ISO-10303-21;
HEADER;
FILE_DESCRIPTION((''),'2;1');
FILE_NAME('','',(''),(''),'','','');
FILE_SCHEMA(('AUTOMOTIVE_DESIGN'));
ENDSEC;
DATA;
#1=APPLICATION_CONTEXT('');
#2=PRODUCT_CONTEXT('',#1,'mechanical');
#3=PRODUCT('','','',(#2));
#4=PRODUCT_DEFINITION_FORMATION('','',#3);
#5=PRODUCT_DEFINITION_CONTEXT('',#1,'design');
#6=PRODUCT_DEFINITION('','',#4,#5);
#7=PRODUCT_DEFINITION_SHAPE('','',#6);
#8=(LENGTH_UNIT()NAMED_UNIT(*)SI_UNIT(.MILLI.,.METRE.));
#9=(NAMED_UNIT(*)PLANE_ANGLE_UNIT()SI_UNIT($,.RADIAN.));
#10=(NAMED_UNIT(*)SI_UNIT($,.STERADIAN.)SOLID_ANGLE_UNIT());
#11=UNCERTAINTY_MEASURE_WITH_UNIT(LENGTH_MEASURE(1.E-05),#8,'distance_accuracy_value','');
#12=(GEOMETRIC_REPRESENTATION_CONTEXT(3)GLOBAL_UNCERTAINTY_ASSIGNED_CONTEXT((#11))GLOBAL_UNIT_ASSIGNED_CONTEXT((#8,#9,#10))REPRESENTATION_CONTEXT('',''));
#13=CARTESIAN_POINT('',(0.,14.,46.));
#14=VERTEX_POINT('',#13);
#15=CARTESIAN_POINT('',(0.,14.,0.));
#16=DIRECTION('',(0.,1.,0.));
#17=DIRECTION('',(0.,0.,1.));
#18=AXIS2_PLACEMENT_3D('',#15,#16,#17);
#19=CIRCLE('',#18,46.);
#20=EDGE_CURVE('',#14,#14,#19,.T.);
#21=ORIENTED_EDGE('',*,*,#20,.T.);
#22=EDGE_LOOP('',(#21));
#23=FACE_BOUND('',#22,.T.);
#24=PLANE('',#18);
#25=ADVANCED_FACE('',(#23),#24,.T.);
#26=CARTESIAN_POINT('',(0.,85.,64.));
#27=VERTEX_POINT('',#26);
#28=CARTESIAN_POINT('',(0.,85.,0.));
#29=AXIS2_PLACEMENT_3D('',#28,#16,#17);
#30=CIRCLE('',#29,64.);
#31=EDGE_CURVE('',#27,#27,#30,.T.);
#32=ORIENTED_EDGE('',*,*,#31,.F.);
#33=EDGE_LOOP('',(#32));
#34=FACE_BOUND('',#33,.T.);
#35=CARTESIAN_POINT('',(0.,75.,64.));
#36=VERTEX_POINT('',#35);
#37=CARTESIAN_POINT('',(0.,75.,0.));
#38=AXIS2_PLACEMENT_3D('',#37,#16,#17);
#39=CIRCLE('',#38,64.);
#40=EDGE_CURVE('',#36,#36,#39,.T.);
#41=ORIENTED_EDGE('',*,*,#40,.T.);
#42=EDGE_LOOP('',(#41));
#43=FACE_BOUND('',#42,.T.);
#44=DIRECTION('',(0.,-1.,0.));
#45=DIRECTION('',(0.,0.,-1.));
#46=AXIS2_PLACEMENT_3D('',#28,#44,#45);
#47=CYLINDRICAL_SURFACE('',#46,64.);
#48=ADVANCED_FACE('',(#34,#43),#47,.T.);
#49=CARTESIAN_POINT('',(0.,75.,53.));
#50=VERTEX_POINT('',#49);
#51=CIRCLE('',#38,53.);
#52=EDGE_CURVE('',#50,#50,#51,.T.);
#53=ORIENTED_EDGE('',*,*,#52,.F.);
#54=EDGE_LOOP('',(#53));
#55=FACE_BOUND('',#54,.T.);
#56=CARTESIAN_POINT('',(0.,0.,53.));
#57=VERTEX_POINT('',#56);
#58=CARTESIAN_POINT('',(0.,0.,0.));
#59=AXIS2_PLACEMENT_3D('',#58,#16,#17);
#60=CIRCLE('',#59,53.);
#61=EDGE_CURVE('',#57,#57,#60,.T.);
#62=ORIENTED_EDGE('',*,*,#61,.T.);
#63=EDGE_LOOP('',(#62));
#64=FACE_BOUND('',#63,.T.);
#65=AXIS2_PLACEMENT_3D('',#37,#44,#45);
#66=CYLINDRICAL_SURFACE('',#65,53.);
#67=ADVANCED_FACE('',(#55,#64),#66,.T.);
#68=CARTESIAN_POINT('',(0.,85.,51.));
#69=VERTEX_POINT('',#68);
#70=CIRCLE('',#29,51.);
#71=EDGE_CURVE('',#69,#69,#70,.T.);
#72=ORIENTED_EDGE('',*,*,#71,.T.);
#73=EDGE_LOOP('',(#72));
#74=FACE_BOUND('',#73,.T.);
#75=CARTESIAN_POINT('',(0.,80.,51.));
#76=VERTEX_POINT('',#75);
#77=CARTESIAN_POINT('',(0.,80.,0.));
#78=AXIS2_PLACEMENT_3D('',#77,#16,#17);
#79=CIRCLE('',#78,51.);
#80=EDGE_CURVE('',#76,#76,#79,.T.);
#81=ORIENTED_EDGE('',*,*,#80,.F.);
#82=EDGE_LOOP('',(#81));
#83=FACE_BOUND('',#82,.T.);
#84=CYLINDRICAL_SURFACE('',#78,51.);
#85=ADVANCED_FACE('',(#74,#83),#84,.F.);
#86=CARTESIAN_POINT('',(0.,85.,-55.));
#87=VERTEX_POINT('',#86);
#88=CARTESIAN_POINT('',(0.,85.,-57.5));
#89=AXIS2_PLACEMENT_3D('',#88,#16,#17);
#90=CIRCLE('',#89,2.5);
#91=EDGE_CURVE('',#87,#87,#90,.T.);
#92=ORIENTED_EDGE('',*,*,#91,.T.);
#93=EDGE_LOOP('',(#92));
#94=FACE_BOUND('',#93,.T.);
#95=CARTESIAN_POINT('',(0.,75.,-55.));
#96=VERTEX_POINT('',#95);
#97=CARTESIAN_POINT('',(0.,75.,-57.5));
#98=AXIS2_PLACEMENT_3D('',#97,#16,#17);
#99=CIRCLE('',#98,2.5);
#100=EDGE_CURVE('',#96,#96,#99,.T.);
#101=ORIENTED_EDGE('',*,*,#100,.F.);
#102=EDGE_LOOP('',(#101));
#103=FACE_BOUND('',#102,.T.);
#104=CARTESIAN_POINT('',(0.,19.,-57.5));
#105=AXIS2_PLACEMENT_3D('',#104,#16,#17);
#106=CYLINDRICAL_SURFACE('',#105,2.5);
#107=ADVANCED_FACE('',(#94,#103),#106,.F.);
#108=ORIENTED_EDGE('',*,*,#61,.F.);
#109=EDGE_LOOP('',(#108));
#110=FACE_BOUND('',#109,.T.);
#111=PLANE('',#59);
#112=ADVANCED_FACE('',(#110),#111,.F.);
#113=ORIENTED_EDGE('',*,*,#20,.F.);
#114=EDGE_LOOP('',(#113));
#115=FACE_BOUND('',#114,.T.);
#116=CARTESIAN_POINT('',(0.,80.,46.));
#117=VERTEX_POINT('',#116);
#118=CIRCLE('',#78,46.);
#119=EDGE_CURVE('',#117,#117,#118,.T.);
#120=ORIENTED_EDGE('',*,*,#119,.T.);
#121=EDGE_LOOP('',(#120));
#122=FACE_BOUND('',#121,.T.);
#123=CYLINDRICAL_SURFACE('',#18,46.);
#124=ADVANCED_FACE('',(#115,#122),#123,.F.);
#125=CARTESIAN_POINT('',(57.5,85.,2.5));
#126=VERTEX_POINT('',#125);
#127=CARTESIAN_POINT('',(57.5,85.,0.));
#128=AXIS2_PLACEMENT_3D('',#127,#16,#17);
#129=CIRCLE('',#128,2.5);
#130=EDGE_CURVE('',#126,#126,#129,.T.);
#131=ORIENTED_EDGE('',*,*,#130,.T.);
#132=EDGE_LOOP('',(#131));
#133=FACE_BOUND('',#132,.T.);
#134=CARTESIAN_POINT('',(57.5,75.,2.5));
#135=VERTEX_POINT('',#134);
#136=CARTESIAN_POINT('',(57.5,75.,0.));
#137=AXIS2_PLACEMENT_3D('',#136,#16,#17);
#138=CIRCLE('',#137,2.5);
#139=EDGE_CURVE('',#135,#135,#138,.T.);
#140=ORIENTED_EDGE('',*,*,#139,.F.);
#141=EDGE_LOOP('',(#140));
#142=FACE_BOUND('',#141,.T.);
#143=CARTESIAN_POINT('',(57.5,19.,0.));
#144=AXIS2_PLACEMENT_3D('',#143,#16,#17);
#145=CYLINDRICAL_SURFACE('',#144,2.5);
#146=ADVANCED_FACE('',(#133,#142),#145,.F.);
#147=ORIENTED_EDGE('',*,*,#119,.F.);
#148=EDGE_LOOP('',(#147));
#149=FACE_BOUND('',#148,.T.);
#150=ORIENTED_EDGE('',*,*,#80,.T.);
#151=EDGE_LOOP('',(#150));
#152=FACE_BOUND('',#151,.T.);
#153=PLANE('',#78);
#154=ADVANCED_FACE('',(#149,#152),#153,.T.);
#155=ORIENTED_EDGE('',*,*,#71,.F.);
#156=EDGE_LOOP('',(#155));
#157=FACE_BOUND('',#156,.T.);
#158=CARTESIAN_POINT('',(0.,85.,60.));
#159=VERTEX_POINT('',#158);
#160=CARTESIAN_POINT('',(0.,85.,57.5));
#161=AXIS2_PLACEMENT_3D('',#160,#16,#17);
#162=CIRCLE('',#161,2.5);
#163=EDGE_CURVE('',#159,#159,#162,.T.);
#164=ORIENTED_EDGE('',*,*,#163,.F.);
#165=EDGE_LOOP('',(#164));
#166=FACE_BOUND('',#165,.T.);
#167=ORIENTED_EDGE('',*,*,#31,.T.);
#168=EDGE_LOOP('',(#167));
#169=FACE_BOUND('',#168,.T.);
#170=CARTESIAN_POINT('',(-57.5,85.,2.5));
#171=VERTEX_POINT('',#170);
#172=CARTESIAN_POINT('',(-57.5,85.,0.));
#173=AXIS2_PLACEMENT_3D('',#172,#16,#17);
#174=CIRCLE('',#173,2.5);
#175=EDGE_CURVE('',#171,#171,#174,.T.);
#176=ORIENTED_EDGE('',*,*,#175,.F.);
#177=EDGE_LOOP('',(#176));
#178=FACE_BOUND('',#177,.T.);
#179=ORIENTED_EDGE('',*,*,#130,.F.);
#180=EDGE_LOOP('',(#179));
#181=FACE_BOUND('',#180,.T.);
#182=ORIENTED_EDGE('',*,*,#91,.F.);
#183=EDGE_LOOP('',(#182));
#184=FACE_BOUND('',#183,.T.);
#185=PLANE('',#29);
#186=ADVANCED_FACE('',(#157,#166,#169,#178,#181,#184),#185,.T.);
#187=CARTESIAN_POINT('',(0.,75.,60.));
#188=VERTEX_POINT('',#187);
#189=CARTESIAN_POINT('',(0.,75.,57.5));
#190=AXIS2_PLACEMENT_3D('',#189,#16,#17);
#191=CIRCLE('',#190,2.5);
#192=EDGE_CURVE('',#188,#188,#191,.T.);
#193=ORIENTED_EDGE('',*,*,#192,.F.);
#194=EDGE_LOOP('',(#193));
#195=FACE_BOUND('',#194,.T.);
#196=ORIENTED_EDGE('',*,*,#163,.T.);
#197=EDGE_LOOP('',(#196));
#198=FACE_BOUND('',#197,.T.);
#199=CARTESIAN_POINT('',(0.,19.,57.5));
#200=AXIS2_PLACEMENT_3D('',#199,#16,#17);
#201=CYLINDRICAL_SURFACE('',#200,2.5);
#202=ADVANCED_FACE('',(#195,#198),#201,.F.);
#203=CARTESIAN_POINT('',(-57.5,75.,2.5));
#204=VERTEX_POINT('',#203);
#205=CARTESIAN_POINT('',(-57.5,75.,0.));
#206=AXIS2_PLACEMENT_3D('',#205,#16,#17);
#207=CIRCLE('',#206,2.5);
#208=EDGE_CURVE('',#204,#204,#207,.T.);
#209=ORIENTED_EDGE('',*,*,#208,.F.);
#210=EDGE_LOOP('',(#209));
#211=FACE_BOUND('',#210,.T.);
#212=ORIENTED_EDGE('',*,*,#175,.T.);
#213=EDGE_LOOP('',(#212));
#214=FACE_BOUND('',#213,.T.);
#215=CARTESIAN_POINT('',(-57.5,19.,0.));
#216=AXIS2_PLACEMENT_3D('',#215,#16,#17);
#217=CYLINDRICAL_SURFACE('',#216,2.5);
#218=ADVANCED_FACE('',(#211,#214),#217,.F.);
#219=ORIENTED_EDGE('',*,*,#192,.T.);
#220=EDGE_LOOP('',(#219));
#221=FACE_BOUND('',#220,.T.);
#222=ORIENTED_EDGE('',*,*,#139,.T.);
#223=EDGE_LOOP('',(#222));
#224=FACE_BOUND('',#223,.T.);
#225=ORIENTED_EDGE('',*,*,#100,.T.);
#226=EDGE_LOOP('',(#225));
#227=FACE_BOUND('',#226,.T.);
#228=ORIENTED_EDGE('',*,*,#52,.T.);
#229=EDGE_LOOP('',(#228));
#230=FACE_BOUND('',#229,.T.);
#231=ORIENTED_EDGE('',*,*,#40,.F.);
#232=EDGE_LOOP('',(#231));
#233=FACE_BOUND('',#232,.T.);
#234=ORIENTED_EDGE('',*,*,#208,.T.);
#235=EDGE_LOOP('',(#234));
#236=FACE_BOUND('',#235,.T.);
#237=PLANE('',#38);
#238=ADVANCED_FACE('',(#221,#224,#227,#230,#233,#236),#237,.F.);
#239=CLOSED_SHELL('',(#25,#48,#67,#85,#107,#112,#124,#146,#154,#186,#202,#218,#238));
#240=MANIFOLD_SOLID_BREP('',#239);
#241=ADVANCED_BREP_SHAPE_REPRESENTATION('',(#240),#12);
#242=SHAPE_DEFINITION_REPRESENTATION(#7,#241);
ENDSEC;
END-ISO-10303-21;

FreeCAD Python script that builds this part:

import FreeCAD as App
import Part
import Sketcher
from FreeCAD import Vector
Q = App.Units.Quantity

doc = App.newDocument("Part")
params = doc.addObject("Spreadsheet::Sheet", "Params")
for row, (alias, value) in enumerate([
    ("sketch1_diameter", "106 mm"),
    ("pad1_length", "75 mm"),
    ("sketch2_diameter", "128 mm"),
    ("pad2_length", "10 mm"),
    ("sketch3_diameter", "102 mm"),
    ("pocket1_length", "5 mm"),
    ("sketch4_diameter", "92 mm"),
    ("pocket2_length", "66 mm"),
    ("sketch5_diameter", "5 mm"),
    ("pocket3_length", "66 mm"),
], start=1):
    params.set(f"A{row}", alias)
    params.set(f"B{row}", "=" + value)
    params.setAlias(f"B{row}", alias)

body = doc.addObject("PartDesign::Body", "Body")

# Sketch on XZ plane
sketch1 = body.newObject("Sketcher::SketchObject", "Sketch")
sketch1.AttachmentSupport = (doc.getObject("XZ_Plane"), [""])
sketch1.MapMode = "FlatFace"
sketch1.addGeometry(Part.Circle(Vector(0, 0, 0), Vector(0, 0, 1), 53), False)
sketch1.addConstraint([
    Sketcher.Constraint("Coincident", 0, 3, -1, 1),
    Sketcher.Constraint("Diameter", 0, Q("106 mm")),
])
sketch1.setExpression("Constraints[1]", "Params.sketch1_diameter")
pad1 = body.newObject("PartDesign::Pad", "Pad")
pad1.Profile = sketch1
pad1.setExpression("Length", "Params.pad1_length")
pad1.Reversed = True

# Sketch on XZ plane
sketch2 = body.newObject("Sketcher::SketchObject", "Sketch001")
sketch2.AttachmentSupport = (doc.getObject("XZ_Plane"), [""])
sketch2.MapMode = "FlatFace"
sketch2.AttachmentOffset = App.Placement(Vector(0, 0, -75), App.Rotation())
sketch2.addGeometry(Part.Circle(Vector(0, 0, 0), Vector(0, 0, 1), 64), False)
sketch2.addConstraint([
    Sketcher.Constraint("Coincident", 0, 3, -1, 1),
    Sketcher.Constraint("Diameter", 0, Q("128 mm")),
])
sketch2.setExpression("Constraints[1]", "Params.sketch2_diameter")
pad2 = body.newObject("PartDesign::Pad", "Pad001")
pad2.Profile = sketch2
pad2.setExpression("Length", "Params.pad2_length")
pad2.Reversed = True

# Sketch on XZ plane
sketch3 = body.newObject("Sketcher::SketchObject", "Sketch002")
sketch3.AttachmentSupport = (doc.getObject("XZ_Plane"), [""])
sketch3.MapMode = "FlatFace"
sketch3.AttachmentOffset = App.Placement(Vector(0, 0, -85), App.Rotation())
sketch3.addGeometry(Part.Circle(Vector(0, 0, 0), Vector(0, 0, 1), 51), False)
sketch3.addConstraint([
    Sketcher.Constraint("Coincident", 0, 3, -1, 1),
    Sketcher.Constraint("Diameter", 0, Q("102 mm")),
])
sketch3.setExpression("Constraints[1]", "Params.sketch3_diameter")
pocket1 = body.newObject("PartDesign::Pocket", "Pocket")
pocket1.Profile = sketch3
pocket1.setExpression("Length", "Params.pocket1_length")
pocket1.Reversed = True

# Sketch on XZ plane
sketch4 = body.newObject("Sketcher::SketchObject", "Sketch003")
sketch4.AttachmentSupport = (doc.getObject("XZ_Plane"), [""])
sketch4.MapMode = "FlatFace"
sketch4.AttachmentOffset = App.Placement(Vector(0, 0, -80), App.Rotation())
sketch4.addGeometry(Part.Circle(Vector(0, 0, 0), Vector(0, 0, 1), 46), False)
sketch4.addConstraint([
    Sketcher.Constraint("Coincident", 0, 3, -1, 1),
    Sketcher.Constraint("Diameter", 0, Q("92 mm")),
])
sketch4.setExpression("Constraints[1]", "Params.sketch4_diameter")
pocket2 = body.newObject("PartDesign::Pocket", "Pocket001")
pocket2.Profile = sketch4
pocket2.setExpression("Length", "Params.pocket2_length")
pocket2.Reversed = True

# Sketch on XZ plane
sketch5 = body.newObject("Sketcher::SketchObject", "Sketch004")
sketch5.AttachmentSupport = (doc.getObject("XZ_Plane"), [""])
sketch5.MapMode = "FlatFace"
sketch5.AttachmentOffset = App.Placement(Vector(0, 0, -85), App.Rotation())
sketch5.addGeometry([
    Part.Circle(Vector(-57.5, 0, 0), Vector(0, 0, 1), 2.5),
    Part.Circle(Vector(0, -57.5, 0), Vector(0, 0, 1), 2.5),
    Part.Circle(Vector(57.5, 0, 0), Vector(0, 0, 1), 2.5),
    Part.Circle(Vector(0, 57.5, 0), Vector(0, 0, 1), 2.5),
], False)
sketch5.addConstraint([
    Sketcher.Constraint("Equal", 0, 1),
    Sketcher.Constraint("Equal", 1, 2),
    Sketcher.Constraint("Equal", 2, 3),
    Sketcher.Constraint("Symmetric", 0, 3, 2, 3, -1, 1),
    Sketcher.Constraint("Symmetric", 1, 3, 3, 3, -1, 1),
    Sketcher.Constraint("PointOnObject", 0, 3, -1),
    Sketcher.Constraint("PointOnObject", 1, 3, -2),
    Sketcher.Constraint("Diameter", 0, Q("5 mm")),
    Sketcher.Constraint("DistanceX", 0, 3, 2, 3, Q("115 mm")),
    Sketcher.Constraint("DistanceY", 1, 3, 3, 3, Q("115 mm")),
])
sketch5.setExpression("Constraints[7]", "Params.sketch5_diameter")
pocket3 = body.newObject("PartDesign::Pocket", "Pocket002")
pocket3.Profile = sketch5
pocket3.setExpression("Length", "Params.pocket3_length")
pocket3.Reversed = True

doc.recompute()
